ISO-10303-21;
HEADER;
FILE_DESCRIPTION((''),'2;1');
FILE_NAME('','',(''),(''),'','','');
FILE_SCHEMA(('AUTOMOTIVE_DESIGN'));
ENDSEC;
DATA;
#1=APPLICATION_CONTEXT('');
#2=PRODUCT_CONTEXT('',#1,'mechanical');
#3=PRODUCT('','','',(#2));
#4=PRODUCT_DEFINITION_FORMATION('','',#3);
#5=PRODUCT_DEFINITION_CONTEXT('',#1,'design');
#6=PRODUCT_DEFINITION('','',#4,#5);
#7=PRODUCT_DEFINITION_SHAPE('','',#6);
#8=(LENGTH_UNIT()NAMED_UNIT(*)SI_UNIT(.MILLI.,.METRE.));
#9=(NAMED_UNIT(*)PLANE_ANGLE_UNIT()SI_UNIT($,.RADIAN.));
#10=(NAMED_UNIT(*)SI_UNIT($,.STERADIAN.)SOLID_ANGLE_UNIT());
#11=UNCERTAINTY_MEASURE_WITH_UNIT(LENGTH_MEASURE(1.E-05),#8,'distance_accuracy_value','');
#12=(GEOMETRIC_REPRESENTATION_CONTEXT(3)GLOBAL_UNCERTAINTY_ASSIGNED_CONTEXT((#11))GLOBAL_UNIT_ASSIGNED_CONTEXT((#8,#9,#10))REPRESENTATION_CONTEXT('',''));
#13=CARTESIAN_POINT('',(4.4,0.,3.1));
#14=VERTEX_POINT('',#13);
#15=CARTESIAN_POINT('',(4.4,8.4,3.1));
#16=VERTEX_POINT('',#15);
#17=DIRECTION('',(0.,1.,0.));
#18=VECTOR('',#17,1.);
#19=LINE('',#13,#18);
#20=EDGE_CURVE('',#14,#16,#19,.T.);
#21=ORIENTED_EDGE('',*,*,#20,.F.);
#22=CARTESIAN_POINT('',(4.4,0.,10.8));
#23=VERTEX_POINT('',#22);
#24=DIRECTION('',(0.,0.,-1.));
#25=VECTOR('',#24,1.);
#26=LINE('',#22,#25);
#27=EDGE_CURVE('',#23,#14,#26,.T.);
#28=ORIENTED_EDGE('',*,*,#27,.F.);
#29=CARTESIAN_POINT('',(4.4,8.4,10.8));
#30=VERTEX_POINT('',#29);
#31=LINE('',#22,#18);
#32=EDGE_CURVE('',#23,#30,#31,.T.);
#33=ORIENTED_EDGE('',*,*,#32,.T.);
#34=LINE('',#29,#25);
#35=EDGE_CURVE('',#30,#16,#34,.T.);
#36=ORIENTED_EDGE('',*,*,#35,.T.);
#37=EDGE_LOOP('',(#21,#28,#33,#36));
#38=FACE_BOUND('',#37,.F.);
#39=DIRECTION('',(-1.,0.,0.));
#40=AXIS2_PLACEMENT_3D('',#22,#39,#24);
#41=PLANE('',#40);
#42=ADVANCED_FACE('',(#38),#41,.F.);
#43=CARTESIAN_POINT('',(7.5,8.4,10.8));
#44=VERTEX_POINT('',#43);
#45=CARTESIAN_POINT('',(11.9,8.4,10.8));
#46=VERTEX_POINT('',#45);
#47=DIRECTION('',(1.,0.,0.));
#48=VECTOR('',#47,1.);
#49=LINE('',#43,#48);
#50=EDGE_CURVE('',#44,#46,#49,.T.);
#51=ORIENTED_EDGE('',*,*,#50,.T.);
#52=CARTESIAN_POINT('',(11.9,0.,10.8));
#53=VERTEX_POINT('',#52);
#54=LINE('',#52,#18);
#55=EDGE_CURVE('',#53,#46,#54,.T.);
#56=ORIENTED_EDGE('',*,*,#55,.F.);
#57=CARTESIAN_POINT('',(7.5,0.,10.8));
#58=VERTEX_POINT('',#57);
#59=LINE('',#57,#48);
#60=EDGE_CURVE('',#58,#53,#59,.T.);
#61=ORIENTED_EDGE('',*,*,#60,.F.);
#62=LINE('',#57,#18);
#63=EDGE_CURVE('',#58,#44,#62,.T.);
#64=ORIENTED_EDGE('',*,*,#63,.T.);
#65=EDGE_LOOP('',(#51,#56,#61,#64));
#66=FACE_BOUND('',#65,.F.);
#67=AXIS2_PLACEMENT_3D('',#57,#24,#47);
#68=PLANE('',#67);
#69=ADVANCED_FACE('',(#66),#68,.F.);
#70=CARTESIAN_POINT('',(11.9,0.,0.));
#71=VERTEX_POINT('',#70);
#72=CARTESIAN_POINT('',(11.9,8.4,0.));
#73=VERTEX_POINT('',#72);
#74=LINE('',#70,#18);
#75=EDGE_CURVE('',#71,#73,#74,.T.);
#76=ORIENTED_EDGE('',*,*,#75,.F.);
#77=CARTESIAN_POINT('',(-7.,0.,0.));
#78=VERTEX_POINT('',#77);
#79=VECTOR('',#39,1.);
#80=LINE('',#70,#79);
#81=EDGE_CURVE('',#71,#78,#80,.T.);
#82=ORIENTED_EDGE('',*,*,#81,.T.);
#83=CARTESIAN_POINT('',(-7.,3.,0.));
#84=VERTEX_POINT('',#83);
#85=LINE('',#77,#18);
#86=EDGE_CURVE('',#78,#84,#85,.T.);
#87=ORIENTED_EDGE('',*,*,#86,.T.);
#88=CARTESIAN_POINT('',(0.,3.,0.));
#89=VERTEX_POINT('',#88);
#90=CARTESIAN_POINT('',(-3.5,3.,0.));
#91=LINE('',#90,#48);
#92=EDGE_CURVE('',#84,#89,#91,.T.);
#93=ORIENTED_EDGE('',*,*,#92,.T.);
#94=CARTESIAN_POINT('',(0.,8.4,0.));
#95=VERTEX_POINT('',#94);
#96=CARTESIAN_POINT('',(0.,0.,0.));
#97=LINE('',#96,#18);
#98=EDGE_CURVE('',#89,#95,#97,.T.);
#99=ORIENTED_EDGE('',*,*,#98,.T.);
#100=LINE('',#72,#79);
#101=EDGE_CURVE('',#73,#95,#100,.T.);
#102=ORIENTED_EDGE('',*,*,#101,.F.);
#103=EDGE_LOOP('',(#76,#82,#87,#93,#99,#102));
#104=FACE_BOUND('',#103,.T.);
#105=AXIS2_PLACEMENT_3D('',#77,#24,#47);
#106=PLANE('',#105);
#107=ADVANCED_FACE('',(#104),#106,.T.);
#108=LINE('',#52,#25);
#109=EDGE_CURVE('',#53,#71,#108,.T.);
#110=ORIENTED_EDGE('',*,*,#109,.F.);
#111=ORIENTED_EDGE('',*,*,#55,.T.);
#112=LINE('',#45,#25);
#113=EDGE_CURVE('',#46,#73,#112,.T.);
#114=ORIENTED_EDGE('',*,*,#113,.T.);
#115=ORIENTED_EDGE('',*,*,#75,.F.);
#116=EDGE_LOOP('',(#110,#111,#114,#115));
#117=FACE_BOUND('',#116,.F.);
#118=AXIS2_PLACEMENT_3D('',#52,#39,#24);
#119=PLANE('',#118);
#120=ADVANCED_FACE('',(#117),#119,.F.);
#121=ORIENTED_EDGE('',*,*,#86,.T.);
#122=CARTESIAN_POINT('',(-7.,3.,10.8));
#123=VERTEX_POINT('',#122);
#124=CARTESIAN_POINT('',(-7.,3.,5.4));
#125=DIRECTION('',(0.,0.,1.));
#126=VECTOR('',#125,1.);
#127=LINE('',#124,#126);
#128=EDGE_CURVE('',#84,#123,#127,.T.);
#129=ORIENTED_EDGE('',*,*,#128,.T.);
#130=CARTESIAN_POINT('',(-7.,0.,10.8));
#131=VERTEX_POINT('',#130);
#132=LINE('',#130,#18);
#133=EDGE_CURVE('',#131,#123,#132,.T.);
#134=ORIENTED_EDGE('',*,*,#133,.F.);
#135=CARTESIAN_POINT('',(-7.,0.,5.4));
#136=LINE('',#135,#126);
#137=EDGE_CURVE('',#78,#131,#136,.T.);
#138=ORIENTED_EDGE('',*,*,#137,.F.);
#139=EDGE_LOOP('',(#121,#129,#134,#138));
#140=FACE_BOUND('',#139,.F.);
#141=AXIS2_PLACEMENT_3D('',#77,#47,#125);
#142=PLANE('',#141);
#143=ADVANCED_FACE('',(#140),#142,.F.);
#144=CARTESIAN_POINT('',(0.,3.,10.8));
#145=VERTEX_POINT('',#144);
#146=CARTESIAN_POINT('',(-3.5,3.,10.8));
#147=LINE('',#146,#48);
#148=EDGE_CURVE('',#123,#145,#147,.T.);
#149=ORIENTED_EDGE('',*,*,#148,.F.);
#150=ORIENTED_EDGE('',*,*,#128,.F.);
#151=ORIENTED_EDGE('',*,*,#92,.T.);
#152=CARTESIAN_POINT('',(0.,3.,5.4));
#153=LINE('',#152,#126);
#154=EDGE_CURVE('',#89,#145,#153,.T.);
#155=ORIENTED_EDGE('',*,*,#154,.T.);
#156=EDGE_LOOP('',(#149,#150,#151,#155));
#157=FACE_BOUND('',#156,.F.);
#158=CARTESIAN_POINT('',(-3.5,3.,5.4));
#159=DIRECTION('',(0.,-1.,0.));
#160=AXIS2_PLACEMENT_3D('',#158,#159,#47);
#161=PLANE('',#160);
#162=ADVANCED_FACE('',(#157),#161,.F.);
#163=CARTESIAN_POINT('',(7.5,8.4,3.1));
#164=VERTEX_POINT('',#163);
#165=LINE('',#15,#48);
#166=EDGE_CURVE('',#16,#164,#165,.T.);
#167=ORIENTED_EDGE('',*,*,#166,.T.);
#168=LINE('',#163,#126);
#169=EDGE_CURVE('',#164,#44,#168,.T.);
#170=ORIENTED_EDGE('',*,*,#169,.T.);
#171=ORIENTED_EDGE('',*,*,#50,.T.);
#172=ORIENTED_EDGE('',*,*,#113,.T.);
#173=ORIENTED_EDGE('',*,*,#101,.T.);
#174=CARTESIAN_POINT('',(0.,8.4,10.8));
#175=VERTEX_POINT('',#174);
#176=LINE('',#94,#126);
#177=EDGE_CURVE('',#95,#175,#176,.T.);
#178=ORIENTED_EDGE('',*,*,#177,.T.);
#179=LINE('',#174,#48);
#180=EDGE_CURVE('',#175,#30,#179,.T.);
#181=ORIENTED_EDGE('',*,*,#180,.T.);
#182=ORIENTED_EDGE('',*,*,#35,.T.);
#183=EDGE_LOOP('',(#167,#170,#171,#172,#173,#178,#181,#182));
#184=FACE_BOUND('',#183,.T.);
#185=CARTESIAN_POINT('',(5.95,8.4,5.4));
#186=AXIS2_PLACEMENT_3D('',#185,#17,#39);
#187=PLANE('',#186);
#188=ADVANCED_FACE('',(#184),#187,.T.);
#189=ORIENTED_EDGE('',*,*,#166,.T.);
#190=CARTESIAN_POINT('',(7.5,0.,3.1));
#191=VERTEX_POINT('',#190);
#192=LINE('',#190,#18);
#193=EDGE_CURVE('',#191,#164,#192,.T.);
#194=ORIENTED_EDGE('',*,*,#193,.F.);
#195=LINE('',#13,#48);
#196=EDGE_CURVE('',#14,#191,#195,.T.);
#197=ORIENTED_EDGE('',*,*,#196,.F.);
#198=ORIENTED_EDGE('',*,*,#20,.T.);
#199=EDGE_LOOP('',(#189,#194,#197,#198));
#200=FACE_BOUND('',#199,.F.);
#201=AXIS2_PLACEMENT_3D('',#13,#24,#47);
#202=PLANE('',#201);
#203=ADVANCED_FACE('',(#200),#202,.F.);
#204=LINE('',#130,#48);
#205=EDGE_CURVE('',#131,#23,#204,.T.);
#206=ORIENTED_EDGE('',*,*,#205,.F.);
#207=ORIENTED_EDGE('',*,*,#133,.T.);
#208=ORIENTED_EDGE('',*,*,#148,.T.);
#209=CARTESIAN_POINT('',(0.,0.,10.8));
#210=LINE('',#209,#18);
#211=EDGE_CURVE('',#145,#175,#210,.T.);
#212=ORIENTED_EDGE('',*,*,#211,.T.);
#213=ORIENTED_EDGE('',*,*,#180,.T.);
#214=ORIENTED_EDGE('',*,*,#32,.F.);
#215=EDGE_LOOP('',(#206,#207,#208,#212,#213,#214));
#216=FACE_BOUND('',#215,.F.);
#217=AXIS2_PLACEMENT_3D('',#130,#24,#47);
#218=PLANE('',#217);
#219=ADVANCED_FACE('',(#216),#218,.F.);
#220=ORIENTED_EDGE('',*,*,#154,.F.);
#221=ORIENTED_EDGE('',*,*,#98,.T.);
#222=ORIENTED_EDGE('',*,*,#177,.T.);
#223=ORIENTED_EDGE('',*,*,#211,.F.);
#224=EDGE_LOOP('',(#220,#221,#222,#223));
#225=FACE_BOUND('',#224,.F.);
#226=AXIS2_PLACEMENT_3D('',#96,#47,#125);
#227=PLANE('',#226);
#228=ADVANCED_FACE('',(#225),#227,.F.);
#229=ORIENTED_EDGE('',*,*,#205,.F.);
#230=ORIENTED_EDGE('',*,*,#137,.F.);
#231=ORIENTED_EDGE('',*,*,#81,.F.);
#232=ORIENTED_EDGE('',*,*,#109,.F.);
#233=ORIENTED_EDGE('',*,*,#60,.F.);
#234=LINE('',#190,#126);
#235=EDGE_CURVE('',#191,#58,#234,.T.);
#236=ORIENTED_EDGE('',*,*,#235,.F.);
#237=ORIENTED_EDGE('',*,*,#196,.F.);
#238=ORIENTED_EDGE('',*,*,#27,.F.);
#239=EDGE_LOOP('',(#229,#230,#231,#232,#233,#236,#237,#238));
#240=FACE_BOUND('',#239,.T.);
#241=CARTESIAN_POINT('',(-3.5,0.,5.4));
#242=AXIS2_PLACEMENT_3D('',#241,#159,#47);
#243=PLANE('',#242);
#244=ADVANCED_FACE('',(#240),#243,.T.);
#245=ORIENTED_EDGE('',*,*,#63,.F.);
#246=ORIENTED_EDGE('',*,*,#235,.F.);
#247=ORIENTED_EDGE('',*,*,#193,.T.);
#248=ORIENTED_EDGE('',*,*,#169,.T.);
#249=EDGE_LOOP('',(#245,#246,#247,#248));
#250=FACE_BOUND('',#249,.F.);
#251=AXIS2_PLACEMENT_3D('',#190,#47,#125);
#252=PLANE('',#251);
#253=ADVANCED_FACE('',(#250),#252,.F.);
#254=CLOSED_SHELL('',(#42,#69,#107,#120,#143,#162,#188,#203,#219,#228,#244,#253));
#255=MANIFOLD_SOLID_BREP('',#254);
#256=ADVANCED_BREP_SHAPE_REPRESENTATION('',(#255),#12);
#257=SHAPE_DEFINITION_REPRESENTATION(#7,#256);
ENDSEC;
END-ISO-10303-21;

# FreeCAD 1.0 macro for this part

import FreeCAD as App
import Part
import Sketcher
Q = App.Units.Quantity

doc = App.newDocument("Part")
body = doc.addObject("PartDesign::Body", "Body")

# Sketch on XZ plane
sketch1 = body.newObject("Sketcher::SketchObject", "Sketch")
sketch1.AttachmentSupport = (doc.getObject("XZ_Plane"), [""])
sketch1.MapMode = "FlatFace"
sketch1.addGeometry([
    Part.LineSegment(App.Vector(0, 10.8, 0), App.Vector(0, 0, 0)),  # 0
    Part.LineSegment(App.Vector(0, 0, 0), App.Vector(11.9, 0, 0)),  # 1
    Part.LineSegment(App.Vector(11.9, 0, 0), App.Vector(11.9, 10.8, 0)),  # 2
    Part.LineSegment(App.Vector(11.9, 10.8, 0), App.Vector(7.5, 10.8, 0)),  # 3
    Part.LineSegment(App.Vector(7.5, 10.8, 0), App.Vector(7.5, 3.1, 0)),  # 4
    Part.LineSegment(App.Vector(7.5, 3.1, 0), App.Vector(4.4, 3.1, 0)),  # 5
    Part.LineSegment(App.Vector(4.4, 3.1, 0), App.Vector(4.4, 10.8, 0)),  # 6
    Part.LineSegment(App.Vector(4.4, 10.8, 0), App.Vector(0, 10.8, 0)),  # 7
], False)
sketch1.addConstraint([
    Sketcher.Constraint("Coincident", 0, 2, 1, 1),
    Sketcher.Constraint("Coincident", 1, 2, 2, 1),
    Sketcher.Constraint("Coincident", 2, 2, 3, 1),
    Sketcher.Constraint("Coincident", 3, 2, 4, 1),
    Sketcher.Constraint("Coincident", 4, 2, 5, 1),
    Sketcher.Constraint("Coincident", 5, 2, 6, 1),
    Sketcher.Constraint("Coincident", 6, 2, 7, 1),
    Sketcher.Constraint("Coincident", 7, 2, 0, 1),
    Sketcher.Constraint("Vertical", 0),
    Sketcher.Constraint("Horizontal", 1),
    Sketcher.Constraint("Vertical", 2),
    Sketcher.Constraint("Horizontal", 3),
    Sketcher.Constraint("Vertical", 4),
    Sketcher.Constraint("Horizontal", 5),
    Sketcher.Constraint("Vertical", 6),
    Sketcher.Constraint("Horizontal", 7),
    Sketcher.Constraint("Coincident", 0, 2, -1, 1),
    Sketcher.Constraint("Horizontal", 3, 2, 6, 2),
    Sketcher.Constraint("Equal", 3, 7),
    Sketcher.Constraint("DistanceX", 1, 1, 1, 2, Q("11.9 mm")),
    Sketcher.Constraint("DistanceX", 3, 2, 3, 1, Q("4.4 mm")),
    Sketcher.Constraint("DistanceY", 0, 2, 0, 1, Q("10.8 mm")),
    Sketcher.Constraint("DistanceY", 4, 2, 4, 1, Q("7.7 mm")),
])
pad1 = body.newObject("PartDesign::Pad", "Pad")
pad1.Profile = sketch1
pad1.Length = 8.4
pad1.Reversed = True

# Sketch on XZ plane
sketch2 = body.newObject("Sketcher::SketchObject", "Sketch001")
sketch2.AttachmentSupport = (doc.getObject("XZ_Plane"), [""])
sketch2.MapMode = "FlatFace"
sketch2.addGeometry([
    Part.LineSegment(App.Vector(-7, 10.8, 0), App.Vector(-7, 0, 0)),
    Part.LineSegment(App.Vector(-7, 0, 0), App.Vector(0, 0, 0)),
    Part.LineSegment(App.Vector(0, 0, 0), App.Vector(0, 10.8, 0)),
    Part.LineSegment(App.Vector(0, 10.8, 0), App.Vector(-7, 10.8, 0)),
], False)
sketch2.addConstraint([
    Sketcher.Constraint("Coincident", 0, 2, 1, 1),
    Sketcher.Constraint("Coincident", 1, 2, 2, 1),
    Sketcher.Constraint("Coincident", 2, 2, 3, 1),
    Sketcher.Constraint("Coincident", 3, 2, 0, 1),
    Sketcher.Constraint("Vertical", 0),
    Sketcher.Constraint("Horizontal", 1),
    Sketcher.Constraint("Vertical", 2),
    Sketcher.Constraint("Horizontal", 3),
    Sketcher.Constraint("Coincident", 1, 2, -1, 1),
    Sketcher.Constraint("DistanceX", 1, 1, 1, 2, Q("7 mm")),
    Sketcher.Constraint("DistanceY", 0, 2, 0, 1, Q("10.8 mm")),
])
pad2 = body.newObject("PartDesign::Pad", "Pad001")
pad2.Profile = sketch2
pad2.Length = 3
pad2.Reversed = True

doc.recompute()
